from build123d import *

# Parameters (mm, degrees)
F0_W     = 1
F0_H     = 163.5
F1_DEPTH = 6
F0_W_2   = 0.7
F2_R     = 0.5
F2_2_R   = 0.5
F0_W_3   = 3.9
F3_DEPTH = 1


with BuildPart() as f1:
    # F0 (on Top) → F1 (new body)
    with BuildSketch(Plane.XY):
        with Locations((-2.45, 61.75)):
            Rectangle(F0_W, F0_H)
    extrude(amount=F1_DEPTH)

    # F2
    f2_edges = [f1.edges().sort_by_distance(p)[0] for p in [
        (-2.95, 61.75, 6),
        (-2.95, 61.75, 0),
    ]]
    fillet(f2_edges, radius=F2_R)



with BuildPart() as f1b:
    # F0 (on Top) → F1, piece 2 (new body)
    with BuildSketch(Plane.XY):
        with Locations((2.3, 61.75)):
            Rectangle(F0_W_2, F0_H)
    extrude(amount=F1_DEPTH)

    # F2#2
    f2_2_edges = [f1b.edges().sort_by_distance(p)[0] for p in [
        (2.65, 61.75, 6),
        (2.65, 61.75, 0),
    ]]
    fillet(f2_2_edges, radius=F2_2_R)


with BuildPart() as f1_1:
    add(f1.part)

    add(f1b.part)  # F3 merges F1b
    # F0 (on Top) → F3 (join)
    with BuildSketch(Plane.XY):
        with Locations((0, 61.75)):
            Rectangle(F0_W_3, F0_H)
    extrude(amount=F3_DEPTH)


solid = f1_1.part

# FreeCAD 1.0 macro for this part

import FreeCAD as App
import Part
import Sketcher


def edges_at(feature, points):
    """Names of the edges that pass closest to the given points."""
    edges = feature.Shape.Edges
    near = lambda p: min(range(len(edges)), key=lambda i: edges[i].distToShape(Part.Vertex(*p))[0])
    return sorted({f"Edge{near(p) + 1}" for p in points})


def add_polygon(sketch, points):
    """Adds a closed chain of lines whose ends are joined by coincident constraints."""
    first, n = sketch.GeometryCount, len(points)
    for a, b in zip(points, points[1:] + points[:1]):
        sketch.addGeometry(Part.LineSegment(App.Vector(*a, 0), App.Vector(*b, 0)), False)
    for i in range(n):
        sketch.addConstraint(Sketcher.Constraint("Coincident", first + i, 2, first + (i + 1) % n, 1))

doc = App.newDocument("Part")
body = doc.addObject("PartDesign::Body", "Body")

sketch1 = doc.addObject("Sketcher::SketchObject", "Sketch")
body.addObject(sketch1)
sketch1.AttachmentSupport = (doc.XY_Plane, [""])
sketch1.MapMode = "FlatFace"
add_polygon(sketch1, [(-3, 143.5), (-3, -20), (-1.9, -20), (-1.9, 143.5)])
sketch1.addConstraint(Sketcher.Constraint("Vertical", 0))
sketch1.addConstraint(Sketcher.Constraint("Horizontal", 1))
sketch1.addConstraint(Sketcher.Constraint("Vertical", 2))
sketch1.addConstraint(Sketcher.Constraint("Horizontal", 3))
sketch1.addConstraint(Sketcher.Constraint("DistanceX", 1, 1, 1, 2, 1.0))
sketch1.addConstraint(Sketcher.Constraint("DistanceY", 0, 2, 0, 1, 163.5))
sketch1.addConstraint(Sketcher.Constraint("DistanceY", 0, 2, -1, 1, 20.0))
sketch1.addConstraint(Sketcher.Constraint("DistanceX", 0, 2, -1, 1, 2.95))
pad1 = doc.addObject("PartDesign::Pad", "Pad")
body.addObject(pad1)
pad1.Profile = sketch1
pad1.Length = 6
doc.recompute()

fillet = doc.addObject("PartDesign::Fillet", "Fillet")
body.addObject(fillet)
fillet.Base = (pad1, edges_at(pad1, [(-2.95, 61.75, 6), (-2.95, 61.75, 0)]))
fillet.Radius = 0.5
body2 = doc.addObject("PartDesign::Body", "Body001")

sketch2 = doc.addObject("Sketcher::SketchObject", "Sketch001")
body2.addObject(sketch2)
sketch2.AttachmentSupport = (doc.getObject("XY_Plane001"), [""])
sketch2.MapMode = "FlatFace"
add_polygon(sketch2, [(1.9, 143.5), (1.9, -20), (2.6, -20), (2.6, 143.5)])
sketch2.addConstraint(Sketcher.Constraint("Vertical", 0))
sketch2.addConstraint(Sketcher.Constraint("Horizontal", 1))
sketch2.addConstraint(Sketcher.Constraint("Vertical", 2))
sketch2.addConstraint(Sketcher.Constraint("Horizontal", 3))
sketch2.addConstraint(Sketcher.Constraint("DistanceX", 1, 1, 1, 2, 0.7))
sketch2.addConstraint(Sketcher.Constraint("DistanceY", 0, 2, 0, 1, 163.5))
sketch2.addConstraint(Sketcher.Constraint("DistanceY", 0, 2, -1, 1, 20.0))
sketch2.addConstraint(Sketcher.Constraint("DistanceX", -1, 1, 0, 2, 1.95))
pad2 = doc.addObject("PartDesign::Pad", "Pad001")
body2.addObject(pad2)
pad2.Profile = sketch2
pad2.Length = 6
doc.recompute()

fillet2 = doc.addObject("PartDesign::Fillet", "Fillet001")
body2.addObject(fillet2)
fillet2.Base = (pad2, edges_at(pad2, [(2.65, 61.75, 6), (2.65, 61.75, 0)]))
fillet2.Radius = 0.5
body.AllowCompound = True
doc.recompute()

boolean = doc.addObject("PartDesign::Boolean", "Boolean")
body.addObject(boolean)
boolean.Type = "Fuse"
boolean.addObjects([body2])

sketch3 = doc.addObject("Sketcher::SketchObject", "Sketch002")
body.addObject(sketch3)
sketch3.AttachmentSupport = (doc.XY_Plane, [""])
sketch3.MapMode = "FlatFace"
add_polygon(sketch3, [(-1.9, 143.5), (-1.9, -20), (1.9, -20), (1.9, 143.5)])
sketch3.addConstraint(Sketcher.Constraint("Vertical", 0))
sketch3.addConstraint(Sketcher.Constraint("Horizontal", 1))
sketch3.addConstraint(Sketcher.Constraint("Vertical", 2))
sketch3.addConstraint(Sketcher.Constraint("Horizontal", 3))
sketch3.addConstraint(Sketcher.Constraint("DistanceX", 1, 1, 1, 2, 3.9))
sketch3.addConstraint(Sketcher.Constraint("DistanceY", 0, 2, 0, 1, 163.5))
sketch3.addConstraint(Sketcher.Constraint("DistanceY", 0, 2, -1, 1, 20.0))
sketch3.addConstraint(Sketcher.Constraint("DistanceX", 0, 2, -1, 1, 1.95))
pad3 = doc.addObject("PartDesign::Pad", "Pad002")
body.addObject(pad3)
pad3.Profile = sketch3
pad3.Length = 1

doc.recompute()
